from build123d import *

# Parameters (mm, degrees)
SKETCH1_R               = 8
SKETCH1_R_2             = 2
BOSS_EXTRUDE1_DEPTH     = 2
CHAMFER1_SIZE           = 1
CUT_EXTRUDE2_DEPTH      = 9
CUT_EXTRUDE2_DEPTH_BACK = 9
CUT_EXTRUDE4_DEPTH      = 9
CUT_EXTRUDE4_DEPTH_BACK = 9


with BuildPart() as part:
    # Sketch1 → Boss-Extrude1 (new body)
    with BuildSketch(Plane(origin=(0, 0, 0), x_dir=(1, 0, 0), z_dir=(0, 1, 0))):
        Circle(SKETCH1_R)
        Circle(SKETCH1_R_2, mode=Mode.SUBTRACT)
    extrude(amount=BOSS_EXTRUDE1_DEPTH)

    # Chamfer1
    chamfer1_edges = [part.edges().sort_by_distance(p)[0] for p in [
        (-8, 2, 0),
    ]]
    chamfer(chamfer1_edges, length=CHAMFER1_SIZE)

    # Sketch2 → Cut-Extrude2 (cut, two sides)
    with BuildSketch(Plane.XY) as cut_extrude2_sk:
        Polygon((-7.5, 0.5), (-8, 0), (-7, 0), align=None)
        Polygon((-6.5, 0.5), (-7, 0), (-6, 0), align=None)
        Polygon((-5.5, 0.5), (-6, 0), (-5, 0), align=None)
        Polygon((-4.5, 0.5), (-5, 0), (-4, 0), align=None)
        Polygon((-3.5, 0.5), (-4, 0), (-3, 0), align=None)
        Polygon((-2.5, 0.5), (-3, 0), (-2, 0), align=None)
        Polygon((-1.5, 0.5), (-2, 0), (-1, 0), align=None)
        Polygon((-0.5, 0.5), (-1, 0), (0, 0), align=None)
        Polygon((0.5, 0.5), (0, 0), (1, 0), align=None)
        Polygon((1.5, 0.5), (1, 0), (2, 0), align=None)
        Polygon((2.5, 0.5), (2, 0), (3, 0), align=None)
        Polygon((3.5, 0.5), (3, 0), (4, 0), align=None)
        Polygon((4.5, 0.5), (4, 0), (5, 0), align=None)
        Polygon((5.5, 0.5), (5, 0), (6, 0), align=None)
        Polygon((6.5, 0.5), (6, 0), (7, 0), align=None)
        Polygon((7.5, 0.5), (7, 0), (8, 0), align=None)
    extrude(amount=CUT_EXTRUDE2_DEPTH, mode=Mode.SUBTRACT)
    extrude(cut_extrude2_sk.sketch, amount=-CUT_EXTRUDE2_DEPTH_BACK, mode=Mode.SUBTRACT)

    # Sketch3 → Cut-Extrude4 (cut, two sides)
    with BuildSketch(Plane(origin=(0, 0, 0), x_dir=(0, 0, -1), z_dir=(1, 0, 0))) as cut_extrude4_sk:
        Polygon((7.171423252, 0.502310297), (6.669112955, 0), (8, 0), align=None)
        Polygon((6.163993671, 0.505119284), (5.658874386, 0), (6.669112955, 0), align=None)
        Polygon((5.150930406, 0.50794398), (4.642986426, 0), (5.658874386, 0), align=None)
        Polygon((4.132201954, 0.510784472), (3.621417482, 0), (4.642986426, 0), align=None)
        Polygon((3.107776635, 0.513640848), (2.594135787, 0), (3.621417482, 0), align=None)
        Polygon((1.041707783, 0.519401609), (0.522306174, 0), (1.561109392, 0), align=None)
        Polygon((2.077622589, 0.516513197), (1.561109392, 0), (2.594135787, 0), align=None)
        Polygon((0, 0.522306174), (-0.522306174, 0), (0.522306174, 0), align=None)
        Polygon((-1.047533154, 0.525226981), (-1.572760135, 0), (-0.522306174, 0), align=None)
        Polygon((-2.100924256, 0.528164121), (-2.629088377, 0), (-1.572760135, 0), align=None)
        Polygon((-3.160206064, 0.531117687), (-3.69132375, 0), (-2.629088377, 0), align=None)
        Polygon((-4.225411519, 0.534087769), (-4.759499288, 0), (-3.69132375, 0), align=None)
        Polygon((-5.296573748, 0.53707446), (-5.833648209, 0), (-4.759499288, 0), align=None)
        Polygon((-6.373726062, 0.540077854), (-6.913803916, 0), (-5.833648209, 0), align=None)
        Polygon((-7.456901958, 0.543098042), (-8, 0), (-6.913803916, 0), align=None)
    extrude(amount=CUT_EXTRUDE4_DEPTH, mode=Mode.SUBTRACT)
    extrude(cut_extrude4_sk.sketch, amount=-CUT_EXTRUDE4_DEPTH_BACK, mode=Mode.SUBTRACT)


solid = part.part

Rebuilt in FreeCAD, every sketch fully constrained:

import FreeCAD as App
import Part
import Sketcher
from FreeCAD import Vector
Q = App.Units.Quantity


def edges_at(feature, points):
    """Names of the edges that pass closest to the given points."""
    edges = feature.Shape.Edges
    near = lambda p: min(range(len(edges)), key=lambda i: edges[i].distToShape(Part.Vertex(*p))[0])
    return sorted({f"Edge{near(p) + 1}" for p in points})


def add_polygon(sketch, points):
    """Adds a closed chain of lines whose ends are joined by coincident constraints."""
    first, n = sketch.GeometryCount, len(points)
    for a, b in zip(points, points[1:] + points[:1]):
        sketch.addGeometry(Part.LineSegment(App.Vector(*a, 0), App.Vector(*b, 0)), False)
    for i in range(n):
        sketch.addConstraint(Sketcher.Constraint("Coincident", first + i, 2, first + (i + 1) % n, 1))

doc = App.newDocument("Part")
body = doc.addObject("PartDesign::Body", "Body")

sketch1 = doc.addObject("Sketcher::SketchObject", "Sketch")
body.addObject(sketch1)
sketch1.AttachmentSupport = (doc.XZ_Plane, [""])
sketch1.MapMode = "FlatFace"
sketch1.addGeometry(Part.Circle(Vector(0, 0, 0), Vector(0, 0, 1), 8), False)
sketch1.addGeometry(Part.Circle(Vector(0, 0, 0), Vector(0, 0, 1), 2), False)
sketch1.addConstraint(Sketcher.Constraint("Coincident", 0, 3, -1, 1))
sketch1.addConstraint(Sketcher.Constraint("Coincident", 1, 3, -1, 1))
sketch1.addConstraint(Sketcher.Constraint("Diameter", 0, Q("16 mm")))
sketch1.addConstraint(Sketcher.Constraint("Diameter", 1, Q("4 mm")))
pad1 = doc.addObject("PartDesign::Pad", "Pad")
body.addObject(pad1)
pad1.Profile = sketch1
pad1.Length = 2
pad1.Reversed = True
doc.recompute()

chamfer = doc.addObject("PartDesign::Chamfer", "Chamfer")
body.addObject(chamfer)
chamfer.Base = (pad1, edges_at(pad1, [(-8, 2, 0)]))
chamfer.Size = 1

sketch2 = doc.addObject("Sketcher::SketchObject", "Sketch001")
body.addObject(sketch2)
sketch2.AttachmentSupport = (doc.XY_Plane, [""])
sketch2.MapMode = "FlatFace"
add_polygon(sketch2, [(-7.5, 0.5), (-8, 0), (-7, 0)])
add_polygon(sketch2, [(-6.5, 0.5), (-7, 0), (-6, 0)])
add_polygon(sketch2, [(-5.5, 0.5), (-6, 0), (-5, 0)])
add_polygon(sketch2, [(-4.5, 0.5), (-5, 0), (-4, 0)])
add_polygon(sketch2, [(-3.5, 0.5), (-4, 0), (-3, 0)])
add_polygon(sketch2, [(-2.5, 0.5), (-3, 0), (-2, 0)])
add_polygon(sketch2, [(-1.5, 0.5), (-2, 0), (-1, 0)])
add_polygon(sketch2, [(-0.5, 0.5), (-1, 0), (0, 0)])
add_polygon(sketch2, [(0.5, 0.5), (0, 0), (1, 0)])
add_polygon(sketch2, [(1.5, 0.5), (1, 0), (2, 0)])
add_polygon(sketch2, [(2.5, 0.5), (2, 0), (3, 0)])
add_polygon(sketch2, [(3.5, 0.5), (3, 0), (4, 0)])
add_polygon(sketch2, [(4.5, 0.5), (4, 0), (5, 0)])
add_polygon(sketch2, [(5.5, 0.5), (5, 0), (6, 0)])
add_polygon(sketch2, [(6.5, 0.5), (6, 0), (7, 0)])
add_polygon(sketch2, [(7.5, 0.5), (7, 0), (8, 0)])
sketch2.addConstraint(Sketcher.Constraint("Horizontal", 1))
sketch2.addConstraint(Sketcher.Constraint("Horizontal", 4))
sketch2.addConstraint(Sketcher.Constraint("Horizontal", 7))
sketch2.addConstraint(Sketcher.Constraint("Horizontal", 10))
sketch2.addConstraint(Sketcher.Constraint("Horizontal", 13))
sketch2.addConstraint(Sketcher.Constraint("Horizontal", 16))
sketch2.addConstraint(Sketcher.Constraint("Horizontal", 19))
sketch2.addConstraint(Sketcher.Constraint("Horizontal", 22))
sketch2.addConstraint(Sketcher.Constraint("Horizontal", 25))
sketch2.addConstraint(Sketcher.Constraint("Horizontal", 28))
sketch2.addConstraint(Sketcher.Constraint("Horizontal", 31))
sketch2.addConstraint(Sketcher.Constraint("Horizontal", 34))
sketch2.addConstraint(Sketcher.Constraint("Horizontal", 37))
sketch2.addConstraint(Sketcher.Constraint("Horizontal", 40))
sketch2.addConstraint(Sketcher.Constraint("Horizontal", 43))
sketch2.addConstraint(Sketcher.Constraint("Horizontal", 46))
sketch2.addConstraint(Sketcher.Constraint("Coincident", 22, 2, -1, 1))
sketch2.addConstraint(Sketcher.Constraint("Coincident", 24, 2, -1, 1))
sketch2.addConstraint(Sketcher.Constraint("Coincident", 3, 2, 1, 2))
sketch2.addConstraint(Sketcher.Constraint("Coincident", 6, 2, 4, 2))
sketch2.addConstraint(Sketcher.Constraint("Coincident", 9, 2, 7, 2))
sketch2.addConstraint(Sketcher.Constraint("Coincident", 12, 2, 10, 2))
sketch2.addConstraint(Sketcher.Constraint("Coincident", 15, 2, 13, 2))
sketch2.addConstraint(Sketcher.Constraint("Coincident", 18, 2, 16, 2))
sketch2.addConstraint(Sketcher.Constraint("Coincident", 21, 2, 19, 2))
sketch2.addConstraint(Sketcher.Constraint("Coincident", 27, 2, 25, 2))
sketch2.addConstraint(Sketcher.Constraint("Coincident", 30, 2, 28, 2))
sketch2.addConstraint(Sketcher.Constraint("Coincident", 33, 2, 31, 2))
sketch2.addConstraint(Sketcher.Constraint("Coincident", 36, 2, 34, 2))
sketch2.addConstraint(Sketcher.Constraint("Coincident", 39, 2, 37, 2))
sketch2.addConstraint(Sketcher.Constraint("Coincident", 42, 2, 40, 2))
sketch2.addConstraint(Sketcher.Constraint("Coincident", 45, 2, 43, 2))
sketch2.addConstraint(Sketcher.Constraint("Symmetric", 23, 2, 26, 2, -2))
sketch2.addConstraint(Sketcher.Constraint("Symmetric", 20, 2, 29, 2, -2))
sketch2.addConstraint(Sketcher.Constraint("Symmetric", 17, 2, 32, 2, -2))
sketch2.addConstraint(Sketcher.Constraint("Symmetric", 14, 2, 35, 2, -2))
sketch2.addConstraint(Sketcher.Constraint("Symmetric", 11, 2, 38, 2, -2))
sketch2.addConstraint(Sketcher.Constraint("Symmetric", 8, 2, 41, 2, -2))
sketch2.addConstraint(Sketcher.Constraint("Symmetric", 5, 2, 44, 2, -2))
sketch2.addConstraint(Sketcher.Constraint("Symmetric", 2, 2, 47, 2, -2))
sketch2.addConstraint(Sketcher.Constraint("Perpendicular", 0, 2))
sketch2.addConstraint(Sketcher.Constraint("Perpendicular", 2, 3))
sketch2.addConstraint(Sketcher.Constraint("Perpendicular", 3, 5))
sketch2.addConstraint(Sketcher.Constraint("Perpendicular", 5, 6))
sketch2.addConstraint(Sketcher.Constraint("Perpendicular", 6, 8))
sketch2.addConstraint(Sketcher.Constraint("Perpendicular", 8, 9))
sketch2.addConstraint(Sketcher.Constraint("Perpendicular", 9, 11))
sketch2.addConstraint(Sketcher.Constraint("Perpendicular", 11, 12))
sketch2.addConstraint(Sketcher.Constraint("Perpendicular", 12, 14))
sketch2.addConstraint(Sketcher.Constraint("Perpendicular", 14, 15))
sketch2.addConstraint(Sketcher.Constraint("Perpendicular", 15, 17))
sketch2.addConstraint(Sketcher.Constraint("Perpendicular", 17, 18))
sketch2.addConstraint(Sketcher.Constraint("Perpendicular", 18, 20))
sketch2.addConstraint(Sketcher.Constraint("Perpendicular", 20, 21))
sketch2.addConstraint(Sketcher.Constraint("Perpendicular", 21, 23))
sketch2.addConstraint(Sketcher.Constraint("Perpendicular", 23, 24))
sketch2.addConstraint(Sketcher.Constraint("Perpendicular", 24, 26))
sketch2.addConstraint(Sketcher.Constraint("Perpendicular", 27, 29))
sketch2.addConstraint(Sketcher.Constraint("Perpendicular", 30, 32))
sketch2.addConstraint(Sketcher.Constraint("Perpendicular", 33, 35))
sketch2.addConstraint(Sketcher.Constraint("Perpendicular", 36, 38))
sketch2.addConstraint(Sketcher.Constraint("Perpendicular", 39, 41))
sketch2.addConstraint(Sketcher.Constraint("Perpendicular", 42, 44))
sketch2.addConstraint(Sketcher.Constraint("Perpendicular", 45, 47))
sketch2.addConstraint(Sketcher.Constraint("Horizontal", 2, 2, 5, 2))
sketch2.addConstraint(Sketcher.Constraint("Horizontal", 5, 2, 8, 2))
sketch2.addConstraint(Sketcher.Constraint("Horizontal", 8, 2, 11, 2))
sketch2.addConstraint(Sketcher.Constraint("Horizontal", 11, 2, 14, 2))
sketch2.addConstraint(Sketcher.Constraint("Horizontal", 14, 2, 17, 2))
sketch2.addConstraint(Sketcher.Constraint("Horizontal", 17, 2, 20, 2))
sketch2.addConstraint(Sketcher.Constraint("Horizontal", 20, 2, 23, 2))
sketch2.addConstraint(Sketcher.Constraint("DistanceX", 1, 1, 1, 2, Q("1 mm")))
pocket1 = doc.addObject("PartDesign::Pocket", "Pocket")
body.addObject(pocket1)
pocket1.Profile = sketch2
pocket1.Type = "ThroughAll"
pocket1.Midplane = True

sketch3 = doc.addObject("Sketcher::SketchObject", "Sketch002")
body.addObject(sketch3)
sketch3.AttachmentSupport = (doc.YZ_Plane, [""])
sketch3.MapMode = "FlatFace"
add_polygon(sketch3, [(0.5, -7.2), (0, -6.7), (0, -8)])
add_polygon(sketch3, [(0.5, -6.2), (0, -5.7), (0, -6.7)])
add_polygon(sketch3, [(0.5, -5.2), (0, -4.6), (0, -5.7)])
add_polygon(sketch3, [(0.5, -4.1), (0, -3.6), (0, -4.6)])
add_polygon(sketch3, [(0.5, -3.1), (0, -2.6), (0, -3.6)])
add_polygon(sketch3, [(0.5, -1), (0, -0.5), (0, -1.6)])
add_polygon(sketch3, [(0.5, -2.1), (0, -1.6), (0, -2.6)])
add_polygon(sketch3, [(0.5, 0), (0, 0.5), (0, -0.5)])
add_polygon(sketch3, [(0.5, 1), (0, 1.6), (0, 0.5)])
add_polygon(sketch3, [(0.5, 2.1), (0, 2.6), (0, 1.6)])
add_polygon(sketch3, [(0.5, 3.2), (0, 3.7), (0, 2.6)])
add_polygon(sketch3, [(0.5, 4.2), (0, 4.8), (0, 3.7)])
add_polygon(sketch3, [(0.5, 5.3), (0, 5.8), (0, 4.8)])
add_polygon(sketch3, [(0.5, 6.4), (0, 6.9), (0, 5.8)])
add_polygon(sketch3, [(0.5, 7.5), (0, 8), (0, 6.9)])
sketch3.addConstraint(Sketcher.Constraint("Vertical", 1))
sketch3.addConstraint(Sketcher.Constraint("Vertical", 4))
sketch3.addConstraint(Sketcher.Constraint("Vertical", 7))
sketch3.addConstraint(Sketcher.Constraint("Vertical", 10))
sketch3.addConstraint(Sketcher.Constraint("Vertical", 13))
sketch3.addConstraint(Sketcher.Constraint("Vertical", 16))
sketch3.addConstraint(Sketcher.Constraint("Vertical", 19))
sketch3.addConstraint(Sketcher.Constraint("Vertical", 22))
sketch3.addConstraint(Sketcher.Constraint("Vertical", 25))
sketch3.addConstraint(Sketcher.Constraint("Vertical", 28))
sketch3.addConstraint(Sketcher.Constraint("Vertical", 31))
sketch3.addConstraint(Sketcher.Constraint("Vertical", 34))
sketch3.addConstraint(Sketcher.Constraint("Vertical", 37))
sketch3.addConstraint(Sketcher.Constraint("Vertical", 40))
sketch3.addConstraint(Sketcher.Constraint("Vertical", 43))
sketch3.addConstraint(Sketcher.Constraint("Coincident", 4, 2, 0, 2))
sketch3.addConstraint(Sketcher.Constraint("Coincident", 7, 2, 3, 2))
sketch3.addConstraint(Sketcher.Constraint("Coincident", 10, 2, 6, 2))
sketch3.addConstraint(Sketcher.Constraint("Coincident", 13, 2, 9, 2))
sketch3.addConstraint(Sketcher.Constraint("Coincident", 18, 2, 16, 2))
sketch3.addConstraint(Sketcher.Constraint("Coincident", 19, 2, 12, 2))
sketch3.addConstraint(Sketcher.Constraint("Coincident", 22, 2, 15, 2))
sketch3.addConstraint(Sketcher.Constraint("Coincident", 25, 2, 21, 2))
sketch3.addConstraint(Sketcher.Constraint("Coincident", 28, 2, 24, 2))
sketch3.addConstraint(Sketcher.Constraint("Coincident", 31, 2, 27, 2))
sketch3.addConstraint(Sketcher.Constraint("Coincident", 34, 2, 30, 2))
sketch3.addConstraint(Sketcher.Constraint("Coincident", 37, 2, 33, 2))
sketch3.addConstraint(Sketcher.Constraint("Coincident", 40, 2, 36, 2))
sketch3.addConstraint(Sketcher.Constraint("Coincident", 43, 2, 39, 2))
sketch3.addConstraint(Sketcher.Constraint("Symmetric", 15, 2, 21, 2, -1, 1))
sketch3.addConstraint(Sketcher.Constraint("PointOnObject", 23, 2, -1))
sketch3.addConstraint(Sketcher.Constraint("Parallel", 0, 3))
sketch3.addConstraint(Sketcher.Constraint("Perpendicular", 3, 5))
sketch3.addConstraint(Sketcher.Constraint("Perpendicular", 5, 6))
sketch3.addConstraint(Sketcher.Constraint("Perpendicular", 6, 8))
sketch3.addConstraint(Sketcher.Constraint("Perpendicular", 8, 9))
sketch3.addConstraint(Sketcher.Constraint("Perpendicular", 9, 11))
sketch3.addConstraint(Sketcher.Constraint("Perpendicular", 11, 12))
sketch3.addConstraint(Sketcher.Constraint("Perpendicular", 12, 14))
sketch3.addConstraint(Sketcher.Constraint("Perpendicular", 14, 15))
sketch3.addConstraint(Sketcher.Constraint("Perpendicular", 15, 17))
sketch3.addConstraint(Sketcher.Constraint("Perpendicular", 17, 18))
sketch3.addConstraint(Sketcher.Constraint("Perpendicular", 18, 20))
sketch3.addConstraint(Sketcher.Constraint("Perpendicular", 20, 21))
sketch3.addConstraint(Sketcher.Constraint("Perpendicular", 21, 23))
sketch3.addConstraint(Sketcher.Constraint("Perpendicular", 23, 24))
sketch3.addConstraint(Sketcher.Constraint("Perpendicular", 24, 26))
sketch3.addConstraint(Sketcher.Constraint("Perpendicular", 26, 27))
sketch3.addConstraint(Sketcher.Constraint("Perpendicular", 27, 29))
sketch3.addConstraint(Sketcher.Constraint("Perpendicular", 29, 30))
sketch3.addConstraint(Sketcher.Constraint("Perpendicular", 30, 32))
sketch3.addConstraint(Sketcher.Constraint("Perpendicular", 32, 33))
sketch3.addConstraint(Sketcher.Constraint("Perpendicular", 33, 35))
sketch3.addConstraint(Sketcher.Constraint("Perpendicular", 35, 36))
sketch3.addConstraint(Sketcher.Constraint("Perpendicular", 36, 38))
sketch3.addConstraint(Sketcher.Constraint("Perpendicular", 38, 39))
sketch3.addConstraint(Sketcher.Constraint("Perpendicular", 39, 41))
sketch3.addConstraint(Sketcher.Constraint("Perpendicular", 41, 42))
sketch3.addConstraint(Sketcher.Constraint("Perpendicular", 42, 44))
sketch3.addConstraint(Sketcher.Constraint("DistanceY", 1, 2, -1, 1, Q("8 mm")))
sketch3.addConstraint(Sketcher.Constraint("DistanceY", -1, 1, 42, 2, Q("8 mm")))
sketch3.addConstraint(Sketcher.Constraint("DistanceY", 4, 2, 4, 1, Q("1.010239 mm")))
sketch3.addConstraint(Sketcher.Constraint("DistanceY", 10, 2, 10, 1, Q("1.021569 mm")))
sketch3.addConstraint(Sketcher.Constraint("DistanceY", 13, 2, 13, 1, Q("1.027282 mm")))
sketch3.addConstraint(Sketcher.Constraint("DistanceY", 28, 2, 28, 1, Q("1.056328 mm")))
sketch3.addConstraint(Sketcher.Constraint("DistanceY", 37, 2, 37, 1, Q("1.074149 mm")))
sketch3.addConstraint(Sketcher.Constraint("DistanceY", 11, 2, -1, 1, Q("4.132202 mm")))
sketch3.addConstraint(Sketcher.Constraint("DistanceX", -1, 1, 17, 2, Q("0.519402 mm")))
sketch3.addConstraint(Sketcher.Constraint("DistanceY", -1, 1, 33, 2, Q("4.759499 mm")))
sketch3.addConstraint(Sketcher.Constraint("DistanceX", -1, 1, 44, 2, Q("0.543098 mm")))
sketch3.addConstraint(Sketcher.Constraint("DistanceY", 29, 2, 30, 2, Q("1.590399 mm")))
sketch3.addConstraint(Sketcher.Constraint("Distance", 6, Q("0.718341 mm")))
sketch3.addConstraint(Sketcher.Constraint("Distance", 18, Q("0.73046 mm")))
sketch3.addConstraint(Sketcher.Constraint("DistanceY", 25, 2, 25, 1, Q("1.050454 mm")))
sketch3.addConstraint(Sketcher.Constraint("DistanceX", -1, 1, 2, 2, Q("0.50231 mm")))
pocket2 = doc.addObject("PartDesign::Pocket", "Pocket001")
body.addObject(pocket2)
pocket2.Profile = sketch3
pocket2.Type = "ThroughAll"
pocket2.Midplane = True

doc.recompute()
